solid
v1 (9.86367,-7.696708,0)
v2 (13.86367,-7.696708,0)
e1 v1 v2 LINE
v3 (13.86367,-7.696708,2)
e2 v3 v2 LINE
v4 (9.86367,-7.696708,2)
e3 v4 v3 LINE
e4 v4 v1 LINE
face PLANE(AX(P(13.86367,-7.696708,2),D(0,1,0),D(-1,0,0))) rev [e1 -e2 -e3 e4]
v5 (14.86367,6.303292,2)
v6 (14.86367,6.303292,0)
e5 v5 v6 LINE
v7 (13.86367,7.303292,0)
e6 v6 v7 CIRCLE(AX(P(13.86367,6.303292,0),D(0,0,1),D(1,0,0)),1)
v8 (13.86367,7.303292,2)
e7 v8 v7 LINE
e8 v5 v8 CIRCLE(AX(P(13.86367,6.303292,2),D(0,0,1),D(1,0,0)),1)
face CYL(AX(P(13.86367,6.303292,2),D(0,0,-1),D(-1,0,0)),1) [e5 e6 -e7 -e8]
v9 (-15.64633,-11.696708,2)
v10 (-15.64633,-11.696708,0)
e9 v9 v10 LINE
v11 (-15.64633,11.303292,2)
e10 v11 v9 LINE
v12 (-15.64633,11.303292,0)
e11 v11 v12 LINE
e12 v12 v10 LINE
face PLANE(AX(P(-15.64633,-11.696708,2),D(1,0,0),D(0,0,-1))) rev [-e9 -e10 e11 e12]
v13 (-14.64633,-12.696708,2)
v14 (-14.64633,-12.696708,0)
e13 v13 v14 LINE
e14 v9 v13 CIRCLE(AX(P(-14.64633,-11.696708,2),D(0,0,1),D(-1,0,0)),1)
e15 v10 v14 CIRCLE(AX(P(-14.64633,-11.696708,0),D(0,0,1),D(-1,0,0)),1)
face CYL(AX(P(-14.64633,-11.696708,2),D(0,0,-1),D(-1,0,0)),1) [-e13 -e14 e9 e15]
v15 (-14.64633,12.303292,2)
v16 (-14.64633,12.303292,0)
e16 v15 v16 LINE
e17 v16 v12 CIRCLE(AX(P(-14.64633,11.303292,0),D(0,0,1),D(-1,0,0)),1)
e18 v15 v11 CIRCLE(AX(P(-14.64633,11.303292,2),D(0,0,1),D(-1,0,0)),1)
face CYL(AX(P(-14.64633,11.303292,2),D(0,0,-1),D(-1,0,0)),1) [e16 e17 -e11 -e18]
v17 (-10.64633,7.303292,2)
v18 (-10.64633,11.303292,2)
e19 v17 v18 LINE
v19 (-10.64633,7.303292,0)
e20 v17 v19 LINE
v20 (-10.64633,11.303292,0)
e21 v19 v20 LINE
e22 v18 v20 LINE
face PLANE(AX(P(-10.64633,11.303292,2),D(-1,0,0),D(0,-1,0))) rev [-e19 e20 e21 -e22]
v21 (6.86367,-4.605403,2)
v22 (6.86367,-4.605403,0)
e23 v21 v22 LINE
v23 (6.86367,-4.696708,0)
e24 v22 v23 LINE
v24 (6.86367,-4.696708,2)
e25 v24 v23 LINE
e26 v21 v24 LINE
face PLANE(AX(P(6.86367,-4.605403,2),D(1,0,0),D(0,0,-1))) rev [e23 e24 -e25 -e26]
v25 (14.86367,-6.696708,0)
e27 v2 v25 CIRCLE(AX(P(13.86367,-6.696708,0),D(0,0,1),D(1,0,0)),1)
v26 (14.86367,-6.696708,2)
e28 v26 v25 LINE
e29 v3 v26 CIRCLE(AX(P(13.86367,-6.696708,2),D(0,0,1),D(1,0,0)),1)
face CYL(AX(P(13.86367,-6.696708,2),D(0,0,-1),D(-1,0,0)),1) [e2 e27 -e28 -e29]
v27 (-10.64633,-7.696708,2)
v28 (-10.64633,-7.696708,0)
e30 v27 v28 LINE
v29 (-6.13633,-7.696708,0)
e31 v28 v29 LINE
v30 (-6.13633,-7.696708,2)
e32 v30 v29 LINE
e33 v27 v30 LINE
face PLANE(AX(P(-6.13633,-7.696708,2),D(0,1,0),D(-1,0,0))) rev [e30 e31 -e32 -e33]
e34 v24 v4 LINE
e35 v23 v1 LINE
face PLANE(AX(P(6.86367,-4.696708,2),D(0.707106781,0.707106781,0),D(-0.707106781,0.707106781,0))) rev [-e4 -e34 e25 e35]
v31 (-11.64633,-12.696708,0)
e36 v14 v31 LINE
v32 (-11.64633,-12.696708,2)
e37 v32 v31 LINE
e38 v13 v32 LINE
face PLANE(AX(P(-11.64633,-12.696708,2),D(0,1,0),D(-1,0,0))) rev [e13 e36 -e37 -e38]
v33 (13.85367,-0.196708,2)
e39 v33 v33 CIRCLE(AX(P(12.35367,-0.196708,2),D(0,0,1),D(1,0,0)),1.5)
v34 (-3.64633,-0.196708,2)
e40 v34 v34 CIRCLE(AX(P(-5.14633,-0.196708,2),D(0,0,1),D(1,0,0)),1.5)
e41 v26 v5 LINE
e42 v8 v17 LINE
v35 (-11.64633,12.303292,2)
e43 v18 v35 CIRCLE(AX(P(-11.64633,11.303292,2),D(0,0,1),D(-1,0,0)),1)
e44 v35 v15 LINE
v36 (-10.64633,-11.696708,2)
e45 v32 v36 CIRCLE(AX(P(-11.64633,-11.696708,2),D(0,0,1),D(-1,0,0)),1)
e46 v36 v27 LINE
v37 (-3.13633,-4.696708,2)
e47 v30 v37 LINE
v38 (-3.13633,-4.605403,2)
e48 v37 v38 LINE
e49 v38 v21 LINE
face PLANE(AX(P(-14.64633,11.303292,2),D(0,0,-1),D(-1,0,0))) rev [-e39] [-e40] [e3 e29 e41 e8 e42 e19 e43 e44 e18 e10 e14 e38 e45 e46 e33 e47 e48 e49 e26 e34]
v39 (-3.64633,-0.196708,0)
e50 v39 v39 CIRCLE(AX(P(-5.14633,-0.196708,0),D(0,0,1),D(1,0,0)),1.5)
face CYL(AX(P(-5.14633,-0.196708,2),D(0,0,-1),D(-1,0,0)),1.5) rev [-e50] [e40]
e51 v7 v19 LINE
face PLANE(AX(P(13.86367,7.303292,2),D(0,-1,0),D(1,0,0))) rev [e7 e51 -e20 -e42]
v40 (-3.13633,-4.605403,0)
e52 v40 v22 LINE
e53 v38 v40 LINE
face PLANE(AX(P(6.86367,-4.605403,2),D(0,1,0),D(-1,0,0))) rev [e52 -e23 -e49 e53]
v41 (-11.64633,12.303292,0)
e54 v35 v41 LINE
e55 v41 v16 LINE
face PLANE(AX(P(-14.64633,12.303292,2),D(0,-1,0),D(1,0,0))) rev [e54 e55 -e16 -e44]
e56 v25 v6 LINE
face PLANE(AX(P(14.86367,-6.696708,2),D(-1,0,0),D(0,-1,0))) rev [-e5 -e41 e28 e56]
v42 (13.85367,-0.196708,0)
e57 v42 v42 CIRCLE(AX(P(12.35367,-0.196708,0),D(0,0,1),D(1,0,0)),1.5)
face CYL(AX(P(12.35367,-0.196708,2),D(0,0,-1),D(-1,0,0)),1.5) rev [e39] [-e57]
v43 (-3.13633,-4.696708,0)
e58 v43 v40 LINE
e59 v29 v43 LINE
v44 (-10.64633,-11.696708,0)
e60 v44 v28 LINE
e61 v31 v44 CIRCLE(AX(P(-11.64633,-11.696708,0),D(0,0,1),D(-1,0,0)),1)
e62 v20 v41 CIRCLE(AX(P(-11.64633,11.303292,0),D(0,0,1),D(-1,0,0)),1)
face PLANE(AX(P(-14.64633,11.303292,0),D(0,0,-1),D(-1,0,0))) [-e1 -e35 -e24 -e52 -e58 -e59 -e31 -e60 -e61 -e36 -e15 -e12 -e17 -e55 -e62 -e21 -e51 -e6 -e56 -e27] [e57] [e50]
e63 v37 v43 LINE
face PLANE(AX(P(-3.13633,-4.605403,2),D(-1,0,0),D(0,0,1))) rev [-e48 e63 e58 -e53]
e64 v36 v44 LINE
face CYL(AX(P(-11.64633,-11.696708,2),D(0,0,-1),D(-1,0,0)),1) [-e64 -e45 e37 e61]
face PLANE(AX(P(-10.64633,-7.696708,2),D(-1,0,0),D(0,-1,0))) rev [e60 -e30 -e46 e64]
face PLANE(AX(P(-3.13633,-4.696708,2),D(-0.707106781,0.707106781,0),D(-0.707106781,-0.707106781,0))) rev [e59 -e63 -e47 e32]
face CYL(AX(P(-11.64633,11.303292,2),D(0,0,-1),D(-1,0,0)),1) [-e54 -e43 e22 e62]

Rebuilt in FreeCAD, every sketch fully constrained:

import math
import FreeCAD as App
import Part
import Sketcher
from FreeCAD import Vector

doc = App.newDocument("Part")
body = doc.addObject("PartDesign::Body", "Body")

sketch1 = doc.addObject("Sketcher::SketchObject", "Sketch")
body.addObject(sketch1)
sketch1.AttachmentSupport = (doc.XY_Plane, [""])
sketch1.MapMode = "FlatFace"
sketch1.addGeometry([
    Part.LineSegment(Vector(-10.65, -11.7, 0), Vector(-10.65, -7.7, 0)),
    Part.LineSegment(Vector(-10.65, -7.7, 0), Vector(-6.14, -7.7, 0)),
    Part.LineSegment(Vector(-6.14, -7.7, 0), Vector(-3.14, -4.7, 0)),
    Part.LineSegment(Vector(-3.14, -4.7, 0), Vector(-3.14, -4.61, 0)),
    Part.LineSegment(Vector(-3.14, -4.61, 0), Vector(6.86, -4.61, 0)),
    Part.LineSegment(Vector(6.86, -4.61, 0), Vector(6.86, -4.7, 0)),
    Part.LineSegment(Vector(6.86, -4.7, 0), Vector(9.86, -7.7, 0)),
    Part.LineSegment(Vector(9.86, -7.7, 0), Vector(13.86, -7.7, 0)),
    Part.ArcOfCircle(Part.Circle(Vector(13.86, -6.7, 0), Vector(0, 0, 1), 1), math.radians(-90), math.radians(0)),
    Part.LineSegment(Vector(14.86, -6.7, 0), Vector(14.86, 6.3, 0)),
    Part.ArcOfCircle(Part.Circle(Vector(13.86, 6.3, 0), Vector(0, 0, 1), 1), math.radians(0), math.radians(90)),
    Part.LineSegment(Vector(13.86, 7.3, 0), Vector(-10.65, 7.3, 0)),
    Part.LineSegment(Vector(-10.65, 7.3, 0), Vector(-10.65, 11.3, 0)),
    Part.ArcOfCircle(Part.Circle(Vector(-11.65, 11.3, 0), Vector(0, 0, 1), 1), math.radians(0), math.radians(90)),
    Part.LineSegment(Vector(-11.65, 12.3, 0), Vector(-14.65, 12.3, 0)),
    Part.ArcOfCircle(Part.Circle(Vector(-14.65, 11.3, 0), Vector(0, 0, 1), 1), math.radians(90), math.radians(180)),
    Part.LineSegment(Vector(-15.65, 11.3, 0), Vector(-15.65, -11.7, 0)),
    Part.ArcOfCircle(Part.Circle(Vector(-14.65, -11.7, 0), Vector(0, 0, 1), 1), math.radians(-180), math.radians(-90)),
    Part.LineSegment(Vector(-14.65, -12.7, 0), Vector(-11.65, -12.7, 0)),
    Part.ArcOfCircle(Part.Circle(Vector(-11.65, -11.7, 0), Vector(0, 0, 1), 1), math.radians(-90), math.radians(0)),
    Part.Circle(Vector(12.35, -0.2, 0), Vector(0, 0, 1), 1.5),
    Part.Circle(Vector(-5.15, -0.2, 0), Vector(0, 0, 1), 1.5),
], False)
sketch1.addConstraint([
    Sketcher.Constraint("Coincident", 0, 2, 1, 1),
    Sketcher.Constraint("Coincident", 1, 2, 2, 1),
    Sketcher.Constraint("Coincident", 2, 2, 3, 1),
    Sketcher.Constraint("Coincident", 3, 2, 4, 1),
    Sketcher.Constraint("Coincident", 4, 2, 5, 1),
    Sketcher.Constraint("Coincident", 5, 2, 6, 1),
    Sketcher.Constraint("Coincident", 6, 2, 7, 1),
    Sketcher.Constraint("Tangent", 7, 2, 8, 1),
    Sketcher.Constraint("Tangent", 8, 2, 9, 1),
    Sketcher.Constraint("Tangent", 9, 2, 10, 1),
    Sketcher.Constraint("Tangent", 10, 2, 11, 1),
    Sketcher.Constraint("Coincident", 11, 2, 12, 1),
    Sketcher.Constraint("Tangent", 12, 2, 13, 1),
    Sketcher.Constraint("Tangent", 13, 2, 14, 1),
    Sketcher.Constraint("Tangent", 14, 2, 15, 1),
    Sketcher.Constraint("Tangent", 15, 2, 16, 1),
    Sketcher.Constraint("Tangent", 16, 2, 17, 1),
    Sketcher.Constraint("Tangent", 17, 2, 18, 1),
    Sketcher.Constraint("Tangent", 18, 2, 19, 1),
    Sketcher.Constraint("Tangent", 19, 2, 0, 1),
    Sketcher.Constraint("Vertical", 0),
    Sketcher.Constraint("Horizontal", 1),
    Sketcher.Constraint("Vertical", 3),
    Sketcher.Constraint("Horizontal", 4),
    Sketcher.Constraint("Vertical", 5),
    Sketcher.Constraint("Horizontal", 7),
    Sketcher.Constraint("Vertical", 9),
    Sketcher.Constraint("Horizontal", 11),
    Sketcher.Constraint("Vertical", 12),
    Sketcher.Constraint("Horizontal", 14),
    Sketcher.Constraint("Vertical", 16),
    Sketcher.Constraint("Horizontal", 18),
    Sketcher.Constraint("Equal", 8, 10),
    Sketcher.Constraint("Equal", 10, 13),
    Sketcher.Constraint("Equal", 13, 15),
    Sketcher.Constraint("Equal", 15, 17),
    Sketcher.Constraint("Equal", 17, 19),
    Sketcher.Constraint("Equal", 20, 21),
    Sketcher.Constraint("Perpendicular", 2, 6),
    Sketcher.Constraint("Horizontal", 20, 3, 21, 3),
    Sketcher.Constraint("Horizontal", 2, 2, 5, 2),
    Sketcher.Constraint("Horizontal", 1, 2, 6, 2),
    Sketcher.Constraint("Vertical", 13, 3, 19, 3),
    Sketcher.Constraint("Equal", 7, 0),
    Sketcher.Constraint("Equal", 0, 12),
    Sketcher.Constraint("Equal", 2, 6),
    Sketcher.Constraint("Diameter", 20, 3.0),
    Sketcher.Constraint("Radius", 8, 1.0),
    Sketcher.Constraint("DistanceX", 4, 1, 4, 2, 10.0),
    Sketcher.Constraint("DistanceX", 7, 1, 7, 2, 4.0),
    Sketcher.Constraint("DistanceX", 14, 2, 14, 1, 3.0),
    Sketcher.Constraint("DistanceY", 9, 1, 9, 2, 13.0),
    Sketcher.Constraint("DistanceX", 13, 3, 20, 3, 24.0),
    Sketcher.Constraint("DistanceX", 1, 2, 2, 2, 3.0),
    Sketcher.Constraint("DistanceX", 1, 1, 1, 2, 4.51),
    Sketcher.Constraint("DistanceY", 8, 3, 20, 3, 6.5),
    Sketcher.Constraint("DistanceX", 13, 3, 21, 3, 6.5),
    Sketcher.Constraint("DistanceY", 3, 1, 3, 2, 0.091305),
    Sketcher.Constraint("DistanceX", -1, 1, 8, 3, 13.86367),
    Sketcher.Constraint("DistanceY", 8, 3, -1, 1, 6.696708),
])
pad1 = doc.addObject("PartDesign::Pad", "Pad")
body.addObject(pad1)
pad1.Profile = sketch1
pad1.Length = 2

doc.recompute()
